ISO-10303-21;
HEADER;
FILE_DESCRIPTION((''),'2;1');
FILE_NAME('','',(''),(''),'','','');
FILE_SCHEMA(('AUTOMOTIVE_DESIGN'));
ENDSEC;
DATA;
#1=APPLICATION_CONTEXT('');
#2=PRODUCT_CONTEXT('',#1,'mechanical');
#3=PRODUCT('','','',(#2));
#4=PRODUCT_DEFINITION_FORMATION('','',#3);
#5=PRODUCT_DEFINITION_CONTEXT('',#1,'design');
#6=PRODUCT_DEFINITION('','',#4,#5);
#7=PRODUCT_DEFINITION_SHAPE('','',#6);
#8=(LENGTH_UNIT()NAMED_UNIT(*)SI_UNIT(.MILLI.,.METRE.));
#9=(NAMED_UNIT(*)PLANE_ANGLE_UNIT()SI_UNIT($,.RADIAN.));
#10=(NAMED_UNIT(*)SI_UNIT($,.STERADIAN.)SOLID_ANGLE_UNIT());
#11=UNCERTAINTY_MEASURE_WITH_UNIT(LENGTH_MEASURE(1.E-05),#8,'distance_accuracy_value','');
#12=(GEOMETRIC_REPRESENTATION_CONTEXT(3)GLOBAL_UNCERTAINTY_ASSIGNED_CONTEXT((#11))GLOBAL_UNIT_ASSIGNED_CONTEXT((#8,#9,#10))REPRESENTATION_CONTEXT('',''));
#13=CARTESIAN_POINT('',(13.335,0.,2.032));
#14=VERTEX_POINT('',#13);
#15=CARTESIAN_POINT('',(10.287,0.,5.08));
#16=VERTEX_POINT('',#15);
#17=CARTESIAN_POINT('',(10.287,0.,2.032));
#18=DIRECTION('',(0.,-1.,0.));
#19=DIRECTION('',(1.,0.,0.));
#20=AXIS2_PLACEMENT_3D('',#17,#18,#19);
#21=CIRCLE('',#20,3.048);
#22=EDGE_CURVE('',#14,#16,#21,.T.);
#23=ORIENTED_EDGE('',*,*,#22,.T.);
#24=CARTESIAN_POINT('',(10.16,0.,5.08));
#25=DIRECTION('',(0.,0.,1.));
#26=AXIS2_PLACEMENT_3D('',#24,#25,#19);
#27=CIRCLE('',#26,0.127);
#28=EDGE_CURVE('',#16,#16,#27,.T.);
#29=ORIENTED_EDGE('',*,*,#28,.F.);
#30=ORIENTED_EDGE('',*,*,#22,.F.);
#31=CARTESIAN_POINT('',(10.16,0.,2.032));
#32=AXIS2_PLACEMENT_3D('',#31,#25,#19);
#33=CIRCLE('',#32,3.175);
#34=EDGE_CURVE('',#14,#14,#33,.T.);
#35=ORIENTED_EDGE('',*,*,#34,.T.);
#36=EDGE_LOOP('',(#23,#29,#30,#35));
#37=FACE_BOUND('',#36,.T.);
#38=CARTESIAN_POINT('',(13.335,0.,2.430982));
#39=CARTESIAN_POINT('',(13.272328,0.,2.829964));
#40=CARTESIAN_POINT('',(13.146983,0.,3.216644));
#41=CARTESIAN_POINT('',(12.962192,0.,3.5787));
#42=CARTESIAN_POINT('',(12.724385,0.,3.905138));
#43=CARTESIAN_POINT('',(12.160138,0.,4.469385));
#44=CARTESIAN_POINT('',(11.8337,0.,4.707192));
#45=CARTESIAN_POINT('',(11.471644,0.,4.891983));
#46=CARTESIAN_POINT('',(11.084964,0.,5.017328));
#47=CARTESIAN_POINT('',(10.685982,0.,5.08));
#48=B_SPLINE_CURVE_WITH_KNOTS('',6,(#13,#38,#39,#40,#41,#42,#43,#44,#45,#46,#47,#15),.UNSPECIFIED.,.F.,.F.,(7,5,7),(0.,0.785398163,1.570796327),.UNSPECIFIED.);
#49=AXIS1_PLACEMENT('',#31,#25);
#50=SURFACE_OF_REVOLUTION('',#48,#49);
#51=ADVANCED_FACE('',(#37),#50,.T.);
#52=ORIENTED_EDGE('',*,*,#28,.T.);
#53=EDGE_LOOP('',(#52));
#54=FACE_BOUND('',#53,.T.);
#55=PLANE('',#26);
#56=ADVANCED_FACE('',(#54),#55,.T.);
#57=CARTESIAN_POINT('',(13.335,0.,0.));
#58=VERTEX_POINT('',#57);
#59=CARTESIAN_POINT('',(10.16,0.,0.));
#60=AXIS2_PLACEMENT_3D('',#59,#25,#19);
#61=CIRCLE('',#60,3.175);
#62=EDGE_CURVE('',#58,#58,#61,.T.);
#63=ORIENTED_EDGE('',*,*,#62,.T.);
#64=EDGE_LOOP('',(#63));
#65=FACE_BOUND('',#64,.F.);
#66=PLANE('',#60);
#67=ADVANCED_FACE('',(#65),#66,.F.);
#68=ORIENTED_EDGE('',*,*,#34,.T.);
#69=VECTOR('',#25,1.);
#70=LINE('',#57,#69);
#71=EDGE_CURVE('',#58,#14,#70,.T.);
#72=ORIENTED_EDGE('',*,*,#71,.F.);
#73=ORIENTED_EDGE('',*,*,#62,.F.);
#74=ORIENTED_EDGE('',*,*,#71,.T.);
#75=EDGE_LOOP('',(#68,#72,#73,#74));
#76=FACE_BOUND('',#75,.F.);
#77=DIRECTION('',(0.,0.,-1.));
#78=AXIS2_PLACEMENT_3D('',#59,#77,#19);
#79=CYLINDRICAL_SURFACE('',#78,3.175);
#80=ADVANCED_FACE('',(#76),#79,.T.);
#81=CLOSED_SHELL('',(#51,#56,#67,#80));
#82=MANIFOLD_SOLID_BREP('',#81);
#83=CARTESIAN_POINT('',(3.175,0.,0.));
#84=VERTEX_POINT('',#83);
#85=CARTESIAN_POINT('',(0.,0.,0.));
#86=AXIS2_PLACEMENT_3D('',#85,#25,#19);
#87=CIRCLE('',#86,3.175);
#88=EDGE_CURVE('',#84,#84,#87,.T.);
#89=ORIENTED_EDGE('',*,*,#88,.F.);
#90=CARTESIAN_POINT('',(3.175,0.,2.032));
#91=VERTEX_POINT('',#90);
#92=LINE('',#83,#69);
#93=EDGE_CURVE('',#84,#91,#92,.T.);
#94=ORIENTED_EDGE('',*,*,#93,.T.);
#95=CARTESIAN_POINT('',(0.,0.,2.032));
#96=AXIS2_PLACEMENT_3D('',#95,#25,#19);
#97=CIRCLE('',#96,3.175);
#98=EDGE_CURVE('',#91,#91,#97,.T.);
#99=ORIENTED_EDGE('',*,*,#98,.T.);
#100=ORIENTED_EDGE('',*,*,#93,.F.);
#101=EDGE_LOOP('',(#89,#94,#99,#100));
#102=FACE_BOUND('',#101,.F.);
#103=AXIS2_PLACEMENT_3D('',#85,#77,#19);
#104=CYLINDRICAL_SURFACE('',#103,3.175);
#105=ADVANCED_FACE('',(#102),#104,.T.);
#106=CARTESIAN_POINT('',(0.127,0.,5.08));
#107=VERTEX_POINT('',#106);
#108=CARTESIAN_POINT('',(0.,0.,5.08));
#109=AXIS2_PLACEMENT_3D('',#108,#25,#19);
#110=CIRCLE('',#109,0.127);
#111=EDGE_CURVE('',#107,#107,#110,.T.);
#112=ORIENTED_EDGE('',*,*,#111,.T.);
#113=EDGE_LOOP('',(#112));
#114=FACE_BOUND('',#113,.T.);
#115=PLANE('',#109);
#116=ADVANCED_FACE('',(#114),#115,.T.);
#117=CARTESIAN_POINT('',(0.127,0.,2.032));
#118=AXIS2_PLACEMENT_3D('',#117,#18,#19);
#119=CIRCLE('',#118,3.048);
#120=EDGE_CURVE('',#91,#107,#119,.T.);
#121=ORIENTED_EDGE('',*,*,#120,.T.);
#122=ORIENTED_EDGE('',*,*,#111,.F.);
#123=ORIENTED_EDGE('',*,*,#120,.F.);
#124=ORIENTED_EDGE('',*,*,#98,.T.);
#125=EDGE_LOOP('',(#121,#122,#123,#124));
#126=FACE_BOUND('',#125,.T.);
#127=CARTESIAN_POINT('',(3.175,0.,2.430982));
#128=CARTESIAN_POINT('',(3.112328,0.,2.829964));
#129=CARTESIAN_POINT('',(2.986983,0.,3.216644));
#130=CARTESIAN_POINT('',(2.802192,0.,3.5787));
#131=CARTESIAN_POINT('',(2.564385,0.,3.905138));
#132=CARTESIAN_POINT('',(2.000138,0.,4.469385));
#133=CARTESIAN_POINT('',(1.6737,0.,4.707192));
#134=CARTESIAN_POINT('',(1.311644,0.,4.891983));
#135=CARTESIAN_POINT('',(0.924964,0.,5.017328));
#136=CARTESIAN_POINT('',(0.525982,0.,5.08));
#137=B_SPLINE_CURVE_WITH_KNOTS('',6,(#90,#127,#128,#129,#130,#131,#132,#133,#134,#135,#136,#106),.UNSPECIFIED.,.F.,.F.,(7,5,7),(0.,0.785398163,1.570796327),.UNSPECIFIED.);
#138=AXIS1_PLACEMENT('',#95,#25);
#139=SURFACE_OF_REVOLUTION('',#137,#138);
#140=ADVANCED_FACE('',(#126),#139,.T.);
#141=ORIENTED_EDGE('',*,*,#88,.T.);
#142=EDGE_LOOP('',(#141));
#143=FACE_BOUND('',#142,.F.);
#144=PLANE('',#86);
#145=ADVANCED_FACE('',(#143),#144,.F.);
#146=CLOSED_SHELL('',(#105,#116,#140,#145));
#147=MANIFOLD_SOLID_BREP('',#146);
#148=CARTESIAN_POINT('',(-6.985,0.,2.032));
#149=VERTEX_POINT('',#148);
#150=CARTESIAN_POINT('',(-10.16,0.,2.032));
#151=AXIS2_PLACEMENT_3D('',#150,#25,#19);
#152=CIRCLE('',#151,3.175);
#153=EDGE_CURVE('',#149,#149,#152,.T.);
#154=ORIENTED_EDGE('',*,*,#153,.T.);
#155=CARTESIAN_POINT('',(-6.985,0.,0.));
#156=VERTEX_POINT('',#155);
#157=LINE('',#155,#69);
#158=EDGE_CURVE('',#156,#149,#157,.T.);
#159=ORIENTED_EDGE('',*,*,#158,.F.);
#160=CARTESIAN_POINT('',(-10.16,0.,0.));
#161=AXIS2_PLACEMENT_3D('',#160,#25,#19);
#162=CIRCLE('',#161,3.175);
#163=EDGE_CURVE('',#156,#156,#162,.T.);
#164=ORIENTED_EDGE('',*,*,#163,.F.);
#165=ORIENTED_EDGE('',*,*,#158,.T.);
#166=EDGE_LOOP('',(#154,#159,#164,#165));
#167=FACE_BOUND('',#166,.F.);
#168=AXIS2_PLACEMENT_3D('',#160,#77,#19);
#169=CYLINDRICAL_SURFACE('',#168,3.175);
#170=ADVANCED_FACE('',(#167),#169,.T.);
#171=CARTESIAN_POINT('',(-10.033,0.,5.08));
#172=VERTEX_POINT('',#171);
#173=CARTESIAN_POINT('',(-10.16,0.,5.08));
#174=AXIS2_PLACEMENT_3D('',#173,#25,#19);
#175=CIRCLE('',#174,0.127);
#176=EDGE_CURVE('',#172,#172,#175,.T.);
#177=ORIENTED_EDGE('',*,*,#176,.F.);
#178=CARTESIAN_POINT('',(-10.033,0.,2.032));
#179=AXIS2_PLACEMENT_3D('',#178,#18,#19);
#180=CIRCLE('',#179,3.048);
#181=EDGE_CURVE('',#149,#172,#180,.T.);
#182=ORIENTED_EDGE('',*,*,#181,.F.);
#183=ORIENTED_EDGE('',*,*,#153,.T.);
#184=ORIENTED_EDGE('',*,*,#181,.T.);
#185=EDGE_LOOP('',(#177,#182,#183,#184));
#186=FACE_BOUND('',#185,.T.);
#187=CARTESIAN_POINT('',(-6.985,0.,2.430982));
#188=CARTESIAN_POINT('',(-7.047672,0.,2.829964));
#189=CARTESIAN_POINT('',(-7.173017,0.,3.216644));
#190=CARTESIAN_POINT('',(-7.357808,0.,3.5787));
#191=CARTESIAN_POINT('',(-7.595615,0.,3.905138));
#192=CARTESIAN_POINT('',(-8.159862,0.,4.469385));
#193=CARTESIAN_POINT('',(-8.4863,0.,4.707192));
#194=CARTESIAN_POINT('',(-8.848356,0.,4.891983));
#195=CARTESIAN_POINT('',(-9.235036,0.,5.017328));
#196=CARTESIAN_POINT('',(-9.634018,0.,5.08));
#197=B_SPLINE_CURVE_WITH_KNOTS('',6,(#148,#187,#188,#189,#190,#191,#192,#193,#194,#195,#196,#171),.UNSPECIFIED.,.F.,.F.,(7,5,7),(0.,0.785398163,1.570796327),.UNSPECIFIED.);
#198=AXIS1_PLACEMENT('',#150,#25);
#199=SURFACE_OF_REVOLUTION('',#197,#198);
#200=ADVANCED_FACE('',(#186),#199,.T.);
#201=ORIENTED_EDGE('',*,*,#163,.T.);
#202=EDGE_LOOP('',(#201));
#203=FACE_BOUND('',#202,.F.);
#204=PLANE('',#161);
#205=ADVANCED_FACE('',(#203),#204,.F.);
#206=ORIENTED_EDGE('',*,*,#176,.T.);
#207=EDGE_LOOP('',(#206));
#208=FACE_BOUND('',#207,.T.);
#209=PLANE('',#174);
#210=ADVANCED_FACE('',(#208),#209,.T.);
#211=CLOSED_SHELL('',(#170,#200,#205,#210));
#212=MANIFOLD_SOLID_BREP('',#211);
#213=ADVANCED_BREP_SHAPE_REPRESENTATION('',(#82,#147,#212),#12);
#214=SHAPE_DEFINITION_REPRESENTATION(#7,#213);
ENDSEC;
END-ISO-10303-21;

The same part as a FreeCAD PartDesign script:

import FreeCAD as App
import Part
import Sketcher

V = App.Vector
Q = App.Units.Quantity


def edges_at(feature, points):
    """Names of the edges that pass closest to the given points."""
    edges = feature.Shape.Edges
    near = lambda p: min(range(len(edges)), key=lambda i: edges[i].distToShape(Part.Vertex(*p))[0])
    return sorted({f"Edge{near(p) + 1}" for p in points})

doc = App.newDocument("Part")
body = doc.addObject("PartDesign::Body", "Body")

sketch1 = body.newObject("Sketcher::SketchObject", "Sketch")
sketch1.AttachmentSupport = (doc.getObject("XY_Plane"), [""])
sketch1.MapMode = "FlatFace"
sketch1.addGeometry(Part.Circle(V(-10.2, 0, 0), V(0, 0, 1), 3.2), False)
sketch1.addConstraint([
    Sketcher.Constraint("PointOnObject", 0, 3, -1),
    Sketcher.Constraint("Diameter", 0, Q("0.25 in")),
    Sketcher.Constraint("DistanceX", 0, 3, -1, 1, Q("0.4 in")),
])
pad1 = body.newObject("PartDesign::Pad", "Pad")
pad1.Profile = sketch1
pad1.Length = Q("0.2 in")
doc.recompute()

fillet = body.newObject("PartDesign::Fillet", "Fillet")
fillet.Base = (pad1, edges_at(pad1, [(-13.335, 0, 5.08)]))
fillet.Radius = Q("0.12 in")
body2 = doc.addObject("PartDesign::Body", "Body001")

sketch2 = body2.newObject("Sketcher::SketchObject", "Sketch001")
sketch2.AttachmentSupport = (doc.getObject("XY_Plane001"), [""])
sketch2.MapMode = "FlatFace"
sketch2.addGeometry(Part.Circle(V(0, 0, 0), V(0, 0, 1), 3.2), False)
sketch2.addConstraint([
    Sketcher.Constraint("Coincident", 0, 3, -1, 1),
    Sketcher.Constraint("Diameter", 0, Q("0.25 in")),
])
pad2 = body2.newObject("PartDesign::Pad", "Pad001")
pad2.Profile = sketch2
pad2.Length = Q("0.2 in")
doc.recompute()

fillet2 = body2.newObject("PartDesign::Fillet", "Fillet001")
fillet2.Base = (pad2, edges_at(pad2, [(-3.175, 0, 5.08)]))
fillet2.Radius = Q("0.12 in")
body3 = doc.addObject("PartDesign::Body", "Body002")

sketch3 = body3.newObject("Sketcher::SketchObject", "Sketch002")
sketch3.AttachmentSupport = (doc.getObject("XY_Plane002"), [""])
sketch3.MapMode = "FlatFace"
sketch3.addGeometry(Part.Circle(V(10.2, 0, 0), V(0, 0, 1), 3.2), False)
sketch3.addConstraint([
    Sketcher.Constraint("PointOnObject", 0, 3, -1),
    Sketcher.Constraint("Diameter", 0, Q("0.25 in")),
    Sketcher.Constraint("DistanceX", -1, 1, 0, 3, Q("0.4 in")),
])
pad3 = body3.newObject("PartDesign::Pad", "Pad002")
pad3.Profile = sketch3
pad3.Length = Q("0.2 in")
doc.recompute()

fillet3 = body3.newObject("PartDesign::Fillet", "Fillet002")
fillet3.Base = (pad3, edges_at(pad3, [(6.985, 0, 5.08)]))
fillet3.Radius = Q("0.12 in")

doc.recompute()
